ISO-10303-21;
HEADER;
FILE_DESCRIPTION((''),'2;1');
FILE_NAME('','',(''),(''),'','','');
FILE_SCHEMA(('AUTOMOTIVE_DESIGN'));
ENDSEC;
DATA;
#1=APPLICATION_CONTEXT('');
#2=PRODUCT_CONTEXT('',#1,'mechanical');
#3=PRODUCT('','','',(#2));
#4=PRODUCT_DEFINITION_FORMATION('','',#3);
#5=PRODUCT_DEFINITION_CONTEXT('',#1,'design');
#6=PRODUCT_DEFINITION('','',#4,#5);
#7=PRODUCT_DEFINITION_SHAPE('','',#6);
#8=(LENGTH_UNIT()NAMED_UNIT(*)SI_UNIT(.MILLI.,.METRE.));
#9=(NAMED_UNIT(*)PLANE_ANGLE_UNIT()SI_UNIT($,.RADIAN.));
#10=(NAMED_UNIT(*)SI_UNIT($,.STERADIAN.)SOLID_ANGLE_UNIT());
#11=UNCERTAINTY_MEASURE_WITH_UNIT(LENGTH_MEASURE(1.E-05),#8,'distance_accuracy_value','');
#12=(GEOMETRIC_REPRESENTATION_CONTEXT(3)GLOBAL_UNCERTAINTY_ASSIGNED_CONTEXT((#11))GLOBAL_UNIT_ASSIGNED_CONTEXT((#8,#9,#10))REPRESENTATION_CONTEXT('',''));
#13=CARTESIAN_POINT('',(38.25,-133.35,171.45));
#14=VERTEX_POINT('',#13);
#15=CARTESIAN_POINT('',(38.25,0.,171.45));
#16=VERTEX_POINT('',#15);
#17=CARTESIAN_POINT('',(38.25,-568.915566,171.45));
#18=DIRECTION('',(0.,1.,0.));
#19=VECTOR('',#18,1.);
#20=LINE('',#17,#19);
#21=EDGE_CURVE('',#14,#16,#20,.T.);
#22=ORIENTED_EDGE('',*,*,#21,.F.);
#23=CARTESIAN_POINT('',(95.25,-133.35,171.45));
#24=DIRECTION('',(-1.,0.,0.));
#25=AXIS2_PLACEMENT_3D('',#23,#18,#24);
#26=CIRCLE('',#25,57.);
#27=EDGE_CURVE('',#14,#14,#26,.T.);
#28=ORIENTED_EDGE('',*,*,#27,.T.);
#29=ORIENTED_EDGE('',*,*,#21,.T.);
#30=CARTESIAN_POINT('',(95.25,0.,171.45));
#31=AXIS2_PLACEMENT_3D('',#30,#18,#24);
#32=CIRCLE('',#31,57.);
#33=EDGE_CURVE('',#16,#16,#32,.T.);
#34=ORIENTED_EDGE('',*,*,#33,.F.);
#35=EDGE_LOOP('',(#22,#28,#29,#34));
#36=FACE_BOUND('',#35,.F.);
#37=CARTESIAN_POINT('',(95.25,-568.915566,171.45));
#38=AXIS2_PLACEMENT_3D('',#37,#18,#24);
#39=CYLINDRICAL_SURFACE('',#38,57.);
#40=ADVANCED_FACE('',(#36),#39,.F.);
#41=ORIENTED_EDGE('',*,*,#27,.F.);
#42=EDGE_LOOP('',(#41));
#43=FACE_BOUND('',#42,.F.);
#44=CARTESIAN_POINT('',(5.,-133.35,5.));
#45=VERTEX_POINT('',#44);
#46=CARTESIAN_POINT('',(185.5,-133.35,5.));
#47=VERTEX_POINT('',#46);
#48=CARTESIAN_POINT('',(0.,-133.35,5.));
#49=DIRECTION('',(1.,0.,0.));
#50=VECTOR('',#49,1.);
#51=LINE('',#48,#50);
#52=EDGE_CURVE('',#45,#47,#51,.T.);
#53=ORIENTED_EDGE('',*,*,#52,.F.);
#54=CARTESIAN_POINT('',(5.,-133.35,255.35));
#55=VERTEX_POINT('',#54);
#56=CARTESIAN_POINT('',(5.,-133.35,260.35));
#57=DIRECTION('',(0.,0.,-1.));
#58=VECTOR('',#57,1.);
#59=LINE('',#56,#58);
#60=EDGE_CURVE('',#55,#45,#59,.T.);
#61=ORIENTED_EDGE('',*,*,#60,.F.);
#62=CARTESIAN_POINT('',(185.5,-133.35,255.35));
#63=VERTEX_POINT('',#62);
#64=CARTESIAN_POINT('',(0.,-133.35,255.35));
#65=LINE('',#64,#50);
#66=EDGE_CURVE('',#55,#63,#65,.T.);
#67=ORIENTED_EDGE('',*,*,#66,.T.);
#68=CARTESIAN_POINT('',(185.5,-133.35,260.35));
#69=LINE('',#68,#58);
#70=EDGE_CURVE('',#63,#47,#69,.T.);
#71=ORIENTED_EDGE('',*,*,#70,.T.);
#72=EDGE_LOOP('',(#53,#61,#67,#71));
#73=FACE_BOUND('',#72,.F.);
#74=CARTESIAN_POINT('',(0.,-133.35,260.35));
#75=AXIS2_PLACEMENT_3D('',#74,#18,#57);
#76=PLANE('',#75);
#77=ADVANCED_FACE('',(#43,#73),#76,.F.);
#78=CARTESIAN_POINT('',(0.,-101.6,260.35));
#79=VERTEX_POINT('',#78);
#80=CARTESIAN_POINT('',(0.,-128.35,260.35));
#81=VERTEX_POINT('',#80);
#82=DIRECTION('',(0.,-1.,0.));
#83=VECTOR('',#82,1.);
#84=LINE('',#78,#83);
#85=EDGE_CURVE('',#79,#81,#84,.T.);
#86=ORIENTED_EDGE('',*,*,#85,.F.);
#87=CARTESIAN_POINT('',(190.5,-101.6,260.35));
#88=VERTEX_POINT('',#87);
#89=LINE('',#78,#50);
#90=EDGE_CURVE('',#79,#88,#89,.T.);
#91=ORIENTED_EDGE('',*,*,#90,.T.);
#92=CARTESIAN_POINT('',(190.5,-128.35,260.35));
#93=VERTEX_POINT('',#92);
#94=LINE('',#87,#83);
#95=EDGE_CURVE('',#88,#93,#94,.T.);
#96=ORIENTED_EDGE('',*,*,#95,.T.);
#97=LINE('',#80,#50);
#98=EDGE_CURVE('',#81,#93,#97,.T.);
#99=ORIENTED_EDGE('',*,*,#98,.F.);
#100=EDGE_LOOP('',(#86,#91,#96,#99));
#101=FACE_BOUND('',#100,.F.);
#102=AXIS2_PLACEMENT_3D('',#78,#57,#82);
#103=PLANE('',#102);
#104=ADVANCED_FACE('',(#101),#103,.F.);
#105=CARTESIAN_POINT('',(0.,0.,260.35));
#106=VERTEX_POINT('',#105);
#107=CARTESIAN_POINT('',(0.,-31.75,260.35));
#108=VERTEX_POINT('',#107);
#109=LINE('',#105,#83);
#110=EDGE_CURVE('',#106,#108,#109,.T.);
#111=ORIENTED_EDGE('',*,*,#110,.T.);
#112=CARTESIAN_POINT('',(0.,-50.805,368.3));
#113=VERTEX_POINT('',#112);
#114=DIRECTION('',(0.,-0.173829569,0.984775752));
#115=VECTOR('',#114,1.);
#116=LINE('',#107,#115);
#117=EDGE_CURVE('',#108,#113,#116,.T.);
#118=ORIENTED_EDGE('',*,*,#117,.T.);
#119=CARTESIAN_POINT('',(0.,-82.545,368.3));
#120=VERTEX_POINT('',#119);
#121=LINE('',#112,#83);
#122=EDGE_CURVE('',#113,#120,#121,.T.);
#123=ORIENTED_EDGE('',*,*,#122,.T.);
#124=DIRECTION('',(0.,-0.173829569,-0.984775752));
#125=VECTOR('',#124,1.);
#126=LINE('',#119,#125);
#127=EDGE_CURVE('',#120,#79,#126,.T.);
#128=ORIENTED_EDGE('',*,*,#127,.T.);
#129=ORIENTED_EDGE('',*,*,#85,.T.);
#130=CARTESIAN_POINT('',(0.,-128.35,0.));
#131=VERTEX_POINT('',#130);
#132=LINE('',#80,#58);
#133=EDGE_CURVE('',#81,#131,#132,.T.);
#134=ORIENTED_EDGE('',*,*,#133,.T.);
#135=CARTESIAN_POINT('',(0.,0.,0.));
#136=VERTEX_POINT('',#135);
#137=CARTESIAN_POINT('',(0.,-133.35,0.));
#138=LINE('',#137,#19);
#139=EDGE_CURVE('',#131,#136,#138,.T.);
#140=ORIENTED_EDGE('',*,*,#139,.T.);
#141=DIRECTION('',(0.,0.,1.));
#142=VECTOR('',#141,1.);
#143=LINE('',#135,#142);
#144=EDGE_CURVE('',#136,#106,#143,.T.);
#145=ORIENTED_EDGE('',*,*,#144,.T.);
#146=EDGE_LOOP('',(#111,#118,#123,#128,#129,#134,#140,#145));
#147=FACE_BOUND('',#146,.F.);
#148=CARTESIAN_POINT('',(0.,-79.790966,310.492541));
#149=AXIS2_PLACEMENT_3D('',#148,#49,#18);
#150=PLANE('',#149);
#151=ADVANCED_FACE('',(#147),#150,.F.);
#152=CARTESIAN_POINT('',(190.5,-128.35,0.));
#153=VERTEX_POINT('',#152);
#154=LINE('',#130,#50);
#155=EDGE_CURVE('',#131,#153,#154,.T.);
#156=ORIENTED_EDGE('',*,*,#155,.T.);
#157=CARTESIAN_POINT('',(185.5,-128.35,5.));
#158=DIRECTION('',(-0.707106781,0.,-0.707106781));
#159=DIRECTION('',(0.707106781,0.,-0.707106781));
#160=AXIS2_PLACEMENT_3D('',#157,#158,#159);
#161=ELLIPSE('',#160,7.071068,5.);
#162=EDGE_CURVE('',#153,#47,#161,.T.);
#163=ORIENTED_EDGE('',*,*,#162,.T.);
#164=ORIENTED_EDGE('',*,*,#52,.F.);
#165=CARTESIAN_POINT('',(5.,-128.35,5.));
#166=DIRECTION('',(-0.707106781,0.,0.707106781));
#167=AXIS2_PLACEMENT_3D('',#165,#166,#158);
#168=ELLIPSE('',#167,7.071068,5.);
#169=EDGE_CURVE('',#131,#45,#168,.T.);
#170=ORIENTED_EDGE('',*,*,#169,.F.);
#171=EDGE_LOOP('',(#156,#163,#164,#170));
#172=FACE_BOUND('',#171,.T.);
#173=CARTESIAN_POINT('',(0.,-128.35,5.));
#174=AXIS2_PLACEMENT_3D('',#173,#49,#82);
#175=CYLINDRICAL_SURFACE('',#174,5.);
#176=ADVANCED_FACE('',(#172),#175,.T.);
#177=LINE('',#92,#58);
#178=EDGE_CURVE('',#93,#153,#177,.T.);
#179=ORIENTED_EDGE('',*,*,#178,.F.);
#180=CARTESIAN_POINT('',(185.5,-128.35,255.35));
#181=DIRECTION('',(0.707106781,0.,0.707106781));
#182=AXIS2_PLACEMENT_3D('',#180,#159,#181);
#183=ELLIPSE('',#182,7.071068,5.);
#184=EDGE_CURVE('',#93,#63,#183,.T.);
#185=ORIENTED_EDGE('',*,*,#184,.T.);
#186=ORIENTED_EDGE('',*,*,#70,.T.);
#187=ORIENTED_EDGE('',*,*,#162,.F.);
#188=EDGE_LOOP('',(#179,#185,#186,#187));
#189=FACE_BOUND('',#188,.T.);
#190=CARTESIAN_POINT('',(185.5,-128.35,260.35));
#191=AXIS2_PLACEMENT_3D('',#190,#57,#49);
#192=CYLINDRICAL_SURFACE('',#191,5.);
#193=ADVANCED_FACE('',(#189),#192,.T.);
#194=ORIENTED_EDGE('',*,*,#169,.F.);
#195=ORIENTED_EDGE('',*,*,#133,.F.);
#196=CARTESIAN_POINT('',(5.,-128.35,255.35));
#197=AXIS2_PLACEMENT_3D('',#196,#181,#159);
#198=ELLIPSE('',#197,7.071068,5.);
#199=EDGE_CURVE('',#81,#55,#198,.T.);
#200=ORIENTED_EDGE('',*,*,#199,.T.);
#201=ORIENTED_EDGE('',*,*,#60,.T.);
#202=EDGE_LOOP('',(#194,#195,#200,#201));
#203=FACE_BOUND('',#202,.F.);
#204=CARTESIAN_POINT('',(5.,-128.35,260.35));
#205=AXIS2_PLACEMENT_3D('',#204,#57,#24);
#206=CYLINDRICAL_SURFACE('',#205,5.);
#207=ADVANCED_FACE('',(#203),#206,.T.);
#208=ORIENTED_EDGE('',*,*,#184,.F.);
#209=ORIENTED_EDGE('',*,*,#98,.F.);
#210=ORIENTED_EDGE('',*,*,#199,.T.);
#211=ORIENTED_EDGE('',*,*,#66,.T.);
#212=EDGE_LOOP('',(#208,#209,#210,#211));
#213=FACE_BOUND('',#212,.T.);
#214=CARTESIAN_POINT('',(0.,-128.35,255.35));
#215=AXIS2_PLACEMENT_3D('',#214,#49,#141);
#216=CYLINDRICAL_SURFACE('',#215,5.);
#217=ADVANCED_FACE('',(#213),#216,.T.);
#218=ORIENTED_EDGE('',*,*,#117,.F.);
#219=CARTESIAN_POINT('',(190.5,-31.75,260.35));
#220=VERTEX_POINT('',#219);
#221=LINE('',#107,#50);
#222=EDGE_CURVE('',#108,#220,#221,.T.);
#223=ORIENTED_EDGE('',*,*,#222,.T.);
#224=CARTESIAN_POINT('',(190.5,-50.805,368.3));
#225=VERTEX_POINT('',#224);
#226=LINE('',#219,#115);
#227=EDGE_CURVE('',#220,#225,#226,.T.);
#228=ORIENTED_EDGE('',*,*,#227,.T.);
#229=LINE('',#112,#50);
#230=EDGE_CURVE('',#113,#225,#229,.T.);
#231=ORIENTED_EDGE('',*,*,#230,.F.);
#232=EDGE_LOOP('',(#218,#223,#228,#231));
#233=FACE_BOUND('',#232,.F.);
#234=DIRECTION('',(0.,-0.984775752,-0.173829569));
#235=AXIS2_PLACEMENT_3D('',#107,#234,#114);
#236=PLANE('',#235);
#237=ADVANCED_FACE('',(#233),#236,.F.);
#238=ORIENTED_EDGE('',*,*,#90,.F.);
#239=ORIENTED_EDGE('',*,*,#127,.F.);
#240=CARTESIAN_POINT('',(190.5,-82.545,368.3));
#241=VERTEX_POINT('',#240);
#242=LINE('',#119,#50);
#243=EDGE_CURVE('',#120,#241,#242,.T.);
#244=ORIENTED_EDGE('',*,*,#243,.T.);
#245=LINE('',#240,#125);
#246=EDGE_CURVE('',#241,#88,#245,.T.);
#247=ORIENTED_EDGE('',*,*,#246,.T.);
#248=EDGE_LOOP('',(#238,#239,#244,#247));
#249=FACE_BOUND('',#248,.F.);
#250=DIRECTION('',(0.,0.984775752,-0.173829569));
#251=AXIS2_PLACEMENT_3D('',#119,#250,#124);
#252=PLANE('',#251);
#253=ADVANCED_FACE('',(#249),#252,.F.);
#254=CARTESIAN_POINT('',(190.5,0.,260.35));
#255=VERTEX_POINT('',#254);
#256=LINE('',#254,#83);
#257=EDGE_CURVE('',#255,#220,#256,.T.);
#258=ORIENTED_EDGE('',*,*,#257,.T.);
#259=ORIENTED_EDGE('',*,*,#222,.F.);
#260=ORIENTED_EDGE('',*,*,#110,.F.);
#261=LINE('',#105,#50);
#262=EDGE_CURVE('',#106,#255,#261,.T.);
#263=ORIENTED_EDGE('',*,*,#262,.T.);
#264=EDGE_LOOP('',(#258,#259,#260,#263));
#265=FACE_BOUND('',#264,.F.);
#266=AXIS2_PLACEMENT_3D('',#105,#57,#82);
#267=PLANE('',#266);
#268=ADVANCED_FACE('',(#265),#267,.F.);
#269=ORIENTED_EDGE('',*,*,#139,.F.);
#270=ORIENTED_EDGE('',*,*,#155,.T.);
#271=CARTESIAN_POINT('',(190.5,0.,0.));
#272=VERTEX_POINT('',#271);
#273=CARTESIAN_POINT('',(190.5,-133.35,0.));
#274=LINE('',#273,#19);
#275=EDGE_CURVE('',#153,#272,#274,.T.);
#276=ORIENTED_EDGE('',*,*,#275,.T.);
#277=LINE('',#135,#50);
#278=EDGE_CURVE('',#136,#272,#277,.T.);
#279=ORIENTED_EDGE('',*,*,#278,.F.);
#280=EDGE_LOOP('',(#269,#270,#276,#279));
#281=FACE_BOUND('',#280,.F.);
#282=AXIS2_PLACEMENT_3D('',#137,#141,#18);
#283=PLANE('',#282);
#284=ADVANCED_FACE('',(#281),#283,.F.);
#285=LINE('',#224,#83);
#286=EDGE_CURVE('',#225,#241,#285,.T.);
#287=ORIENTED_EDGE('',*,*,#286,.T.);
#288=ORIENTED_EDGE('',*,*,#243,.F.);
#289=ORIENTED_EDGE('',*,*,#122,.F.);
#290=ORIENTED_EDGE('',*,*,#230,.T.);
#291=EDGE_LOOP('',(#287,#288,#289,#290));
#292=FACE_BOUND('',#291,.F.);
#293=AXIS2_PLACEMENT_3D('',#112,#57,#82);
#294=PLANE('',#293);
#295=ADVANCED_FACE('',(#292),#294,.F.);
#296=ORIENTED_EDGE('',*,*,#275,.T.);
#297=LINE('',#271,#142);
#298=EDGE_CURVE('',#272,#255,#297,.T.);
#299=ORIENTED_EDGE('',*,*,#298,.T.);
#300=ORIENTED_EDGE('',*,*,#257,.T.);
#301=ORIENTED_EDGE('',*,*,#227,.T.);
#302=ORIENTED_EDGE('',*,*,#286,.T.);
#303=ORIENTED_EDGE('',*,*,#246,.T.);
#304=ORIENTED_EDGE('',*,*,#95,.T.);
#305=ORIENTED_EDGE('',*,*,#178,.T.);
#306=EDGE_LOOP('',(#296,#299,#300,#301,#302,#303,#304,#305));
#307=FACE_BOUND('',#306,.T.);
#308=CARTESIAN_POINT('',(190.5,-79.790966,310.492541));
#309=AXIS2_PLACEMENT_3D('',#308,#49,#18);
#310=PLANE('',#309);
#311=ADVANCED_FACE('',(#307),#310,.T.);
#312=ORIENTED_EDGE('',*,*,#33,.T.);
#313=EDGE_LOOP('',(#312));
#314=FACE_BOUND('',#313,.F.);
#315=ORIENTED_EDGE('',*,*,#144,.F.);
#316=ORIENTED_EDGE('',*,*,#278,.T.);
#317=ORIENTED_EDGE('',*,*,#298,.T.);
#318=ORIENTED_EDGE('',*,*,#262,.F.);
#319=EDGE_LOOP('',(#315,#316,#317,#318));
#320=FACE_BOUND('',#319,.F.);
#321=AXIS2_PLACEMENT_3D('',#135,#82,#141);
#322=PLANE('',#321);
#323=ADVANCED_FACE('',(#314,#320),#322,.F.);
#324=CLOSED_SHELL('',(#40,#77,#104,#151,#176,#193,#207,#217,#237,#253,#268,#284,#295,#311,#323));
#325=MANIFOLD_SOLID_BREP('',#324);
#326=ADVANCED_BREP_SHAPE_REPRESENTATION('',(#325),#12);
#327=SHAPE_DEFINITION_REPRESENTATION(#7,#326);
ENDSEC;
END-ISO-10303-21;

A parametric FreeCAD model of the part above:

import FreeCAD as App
import Part
import Sketcher
from FreeCAD import Vector
Q = App.Units.Quantity


def edges_at(feature, points):
    """Names of the edges that pass closest to the given points."""
    edges = feature.Shape.Edges
    near = lambda p: min(range(len(edges)), key=lambda i: edges[i].distToShape(Part.Vertex(*p))[0])
    return sorted({f"Edge{near(p) + 1}" for p in points})


def add_polygon(sketch, points):
    """Adds a closed chain of lines whose ends are joined by coincident constraints."""
    first, n = sketch.GeometryCount, len(points)
    for a, b in zip(points, points[1:] + points[:1]):
        sketch.addGeometry(Part.LineSegment(App.Vector(*a, 0), App.Vector(*b, 0)), False)
    for i in range(n):
        sketch.addConstraint(Sketcher.Constraint("Coincident", first + i, 2, first + (i + 1) % n, 1))

doc = App.newDocument("Part")
body = doc.addObject("PartDesign::Body", "Body")

sketch1 = body.newObject("Sketcher::SketchObject", "Sketch")
sketch1.AttachmentSupport = (doc.getObject("YZ_Plane"), [""])
sketch1.MapMode = "FlatFace"
add_polygon(sketch1, [(-82.545, 368.3), (-101.6, 260.35), (-133.35, 260.35), (-133.35, 0), (0, 0), (0, 260.35), (-31.75, 260.35), (-50.805, 368.3)])
sketch1.addConstraint([
    Sketcher.Constraint("Horizontal", 1),
    Sketcher.Constraint("Vertical", 2),
    Sketcher.Constraint("Horizontal", 3),
    Sketcher.Constraint("Vertical", 4),
    Sketcher.Constraint("Horizontal", 5),
    Sketcher.Constraint("Horizontal", 7),
    Sketcher.Constraint("Coincident", 3, 2, -1, 1),
    Sketcher.Constraint("Horizontal", 1, 2, 4, 2),
    Sketcher.Constraint("Equal", 1, 5),
    Sketcher.Constraint("Equal", 0, 6),
    Sketcher.Constraint("DistanceX", 1, 2, 1, 1, Q("31.75 mm")),
    Sketcher.Constraint("DistanceX", 3, 1, 3, 2, Q("133.35 mm")),
    Sketcher.Constraint("DistanceX", 7, 2, 7, 1, Q("31.74 mm")),
    Sketcher.Constraint("DistanceY", 2, 2, 2, 1, Q("260.35 mm")),
    Sketcher.Constraint("DistanceY", -1, 1, 6, 2, Q("368.3 mm")),
])
pad1 = body.newObject("PartDesign::Pad", "Pad")
pad1.Profile = sketch1
pad1.Length = 190.5

sketch2 = body.newObject("Sketcher::SketchObject", "Sketch001")
sketch2.AttachmentSupport = (doc.getObject("XZ_Plane"), [""])
sketch2.MapMode = "FlatFace"
sketch2.AttachmentOffset = App.Placement(Vector(0, 0, 133.35), App.Rotation())
sketch2.addGeometry(Part.Circle(Vector(95.25, 171.45, 0), Vector(0, 0, 1), 57), False)
sketch2.addConstraint([
    Sketcher.Constraint("Diameter", 0, Q("114 mm")),
    Sketcher.Constraint("DistanceX", -1, 1, 0, 3, Q("95.25 mm")),
    Sketcher.Constraint("DistanceY", -1, 1, 0, 3, Q("171.45 mm")),
])
doc.recompute()
hole = body.newObject("PartDesign::Hole", "Hole")
hole.Profile = sketch2
hole.ThreadType = "None"
hole.Diameter = 114
hole.DepthType = "ThroughAll"

sketch3 = body.newObject("Sketcher::SketchObject", "Sketch002")
sketch3.AttachmentSupport = (doc.getObject("XZ_Plane"), [""])
sketch3.MapMode = "FlatFace"
sketch3.AttachmentOffset = App.Placement(Vector(0, 0, 133.35), App.Rotation())
add_polygon(sketch3, [(133.25, 76.3), (57.25, 76.3), (57.25, 32.3), (133.25, 32.3)])
sketch3.addConstraint([
    Sketcher.Constraint("Horizontal", 0),
    Sketcher.Constraint("Vertical", 1),
    Sketcher.Constraint("Horizontal", 2),
    Sketcher.Constraint("Vertical", 3),
    Sketcher.Constraint("DistanceX", 0, 2, 0, 1, Q("76 mm")),
    Sketcher.Constraint("DistanceY", 1, 2, 1, 1, Q("44 mm")),
    Sketcher.Constraint("DistanceY", -1, 1, 0, 2, Q("76.3 mm")),
    Sketcher.Constraint("DistanceX", -1, 1, 0, 2, Q("57.25 mm")),
])
pad2 = body.newObject("PartDesign::Pad", "Pad001")
pad2.Profile = sketch3
pad2.Length = 2
pad2.Reversed = True
doc.recompute()

fillet = body.newObject("PartDesign::Fillet", "Fillet")
fillet.Base = (pad2, edges_at(pad2, [
    (0, -133.35, 130.175),
    (95.25, -133.35, 260.35),
    (190.5, -133.35, 130.175),
    (95.25, -133.35, 0),
]))
fillet.Radius = 5

doc.recompute()
